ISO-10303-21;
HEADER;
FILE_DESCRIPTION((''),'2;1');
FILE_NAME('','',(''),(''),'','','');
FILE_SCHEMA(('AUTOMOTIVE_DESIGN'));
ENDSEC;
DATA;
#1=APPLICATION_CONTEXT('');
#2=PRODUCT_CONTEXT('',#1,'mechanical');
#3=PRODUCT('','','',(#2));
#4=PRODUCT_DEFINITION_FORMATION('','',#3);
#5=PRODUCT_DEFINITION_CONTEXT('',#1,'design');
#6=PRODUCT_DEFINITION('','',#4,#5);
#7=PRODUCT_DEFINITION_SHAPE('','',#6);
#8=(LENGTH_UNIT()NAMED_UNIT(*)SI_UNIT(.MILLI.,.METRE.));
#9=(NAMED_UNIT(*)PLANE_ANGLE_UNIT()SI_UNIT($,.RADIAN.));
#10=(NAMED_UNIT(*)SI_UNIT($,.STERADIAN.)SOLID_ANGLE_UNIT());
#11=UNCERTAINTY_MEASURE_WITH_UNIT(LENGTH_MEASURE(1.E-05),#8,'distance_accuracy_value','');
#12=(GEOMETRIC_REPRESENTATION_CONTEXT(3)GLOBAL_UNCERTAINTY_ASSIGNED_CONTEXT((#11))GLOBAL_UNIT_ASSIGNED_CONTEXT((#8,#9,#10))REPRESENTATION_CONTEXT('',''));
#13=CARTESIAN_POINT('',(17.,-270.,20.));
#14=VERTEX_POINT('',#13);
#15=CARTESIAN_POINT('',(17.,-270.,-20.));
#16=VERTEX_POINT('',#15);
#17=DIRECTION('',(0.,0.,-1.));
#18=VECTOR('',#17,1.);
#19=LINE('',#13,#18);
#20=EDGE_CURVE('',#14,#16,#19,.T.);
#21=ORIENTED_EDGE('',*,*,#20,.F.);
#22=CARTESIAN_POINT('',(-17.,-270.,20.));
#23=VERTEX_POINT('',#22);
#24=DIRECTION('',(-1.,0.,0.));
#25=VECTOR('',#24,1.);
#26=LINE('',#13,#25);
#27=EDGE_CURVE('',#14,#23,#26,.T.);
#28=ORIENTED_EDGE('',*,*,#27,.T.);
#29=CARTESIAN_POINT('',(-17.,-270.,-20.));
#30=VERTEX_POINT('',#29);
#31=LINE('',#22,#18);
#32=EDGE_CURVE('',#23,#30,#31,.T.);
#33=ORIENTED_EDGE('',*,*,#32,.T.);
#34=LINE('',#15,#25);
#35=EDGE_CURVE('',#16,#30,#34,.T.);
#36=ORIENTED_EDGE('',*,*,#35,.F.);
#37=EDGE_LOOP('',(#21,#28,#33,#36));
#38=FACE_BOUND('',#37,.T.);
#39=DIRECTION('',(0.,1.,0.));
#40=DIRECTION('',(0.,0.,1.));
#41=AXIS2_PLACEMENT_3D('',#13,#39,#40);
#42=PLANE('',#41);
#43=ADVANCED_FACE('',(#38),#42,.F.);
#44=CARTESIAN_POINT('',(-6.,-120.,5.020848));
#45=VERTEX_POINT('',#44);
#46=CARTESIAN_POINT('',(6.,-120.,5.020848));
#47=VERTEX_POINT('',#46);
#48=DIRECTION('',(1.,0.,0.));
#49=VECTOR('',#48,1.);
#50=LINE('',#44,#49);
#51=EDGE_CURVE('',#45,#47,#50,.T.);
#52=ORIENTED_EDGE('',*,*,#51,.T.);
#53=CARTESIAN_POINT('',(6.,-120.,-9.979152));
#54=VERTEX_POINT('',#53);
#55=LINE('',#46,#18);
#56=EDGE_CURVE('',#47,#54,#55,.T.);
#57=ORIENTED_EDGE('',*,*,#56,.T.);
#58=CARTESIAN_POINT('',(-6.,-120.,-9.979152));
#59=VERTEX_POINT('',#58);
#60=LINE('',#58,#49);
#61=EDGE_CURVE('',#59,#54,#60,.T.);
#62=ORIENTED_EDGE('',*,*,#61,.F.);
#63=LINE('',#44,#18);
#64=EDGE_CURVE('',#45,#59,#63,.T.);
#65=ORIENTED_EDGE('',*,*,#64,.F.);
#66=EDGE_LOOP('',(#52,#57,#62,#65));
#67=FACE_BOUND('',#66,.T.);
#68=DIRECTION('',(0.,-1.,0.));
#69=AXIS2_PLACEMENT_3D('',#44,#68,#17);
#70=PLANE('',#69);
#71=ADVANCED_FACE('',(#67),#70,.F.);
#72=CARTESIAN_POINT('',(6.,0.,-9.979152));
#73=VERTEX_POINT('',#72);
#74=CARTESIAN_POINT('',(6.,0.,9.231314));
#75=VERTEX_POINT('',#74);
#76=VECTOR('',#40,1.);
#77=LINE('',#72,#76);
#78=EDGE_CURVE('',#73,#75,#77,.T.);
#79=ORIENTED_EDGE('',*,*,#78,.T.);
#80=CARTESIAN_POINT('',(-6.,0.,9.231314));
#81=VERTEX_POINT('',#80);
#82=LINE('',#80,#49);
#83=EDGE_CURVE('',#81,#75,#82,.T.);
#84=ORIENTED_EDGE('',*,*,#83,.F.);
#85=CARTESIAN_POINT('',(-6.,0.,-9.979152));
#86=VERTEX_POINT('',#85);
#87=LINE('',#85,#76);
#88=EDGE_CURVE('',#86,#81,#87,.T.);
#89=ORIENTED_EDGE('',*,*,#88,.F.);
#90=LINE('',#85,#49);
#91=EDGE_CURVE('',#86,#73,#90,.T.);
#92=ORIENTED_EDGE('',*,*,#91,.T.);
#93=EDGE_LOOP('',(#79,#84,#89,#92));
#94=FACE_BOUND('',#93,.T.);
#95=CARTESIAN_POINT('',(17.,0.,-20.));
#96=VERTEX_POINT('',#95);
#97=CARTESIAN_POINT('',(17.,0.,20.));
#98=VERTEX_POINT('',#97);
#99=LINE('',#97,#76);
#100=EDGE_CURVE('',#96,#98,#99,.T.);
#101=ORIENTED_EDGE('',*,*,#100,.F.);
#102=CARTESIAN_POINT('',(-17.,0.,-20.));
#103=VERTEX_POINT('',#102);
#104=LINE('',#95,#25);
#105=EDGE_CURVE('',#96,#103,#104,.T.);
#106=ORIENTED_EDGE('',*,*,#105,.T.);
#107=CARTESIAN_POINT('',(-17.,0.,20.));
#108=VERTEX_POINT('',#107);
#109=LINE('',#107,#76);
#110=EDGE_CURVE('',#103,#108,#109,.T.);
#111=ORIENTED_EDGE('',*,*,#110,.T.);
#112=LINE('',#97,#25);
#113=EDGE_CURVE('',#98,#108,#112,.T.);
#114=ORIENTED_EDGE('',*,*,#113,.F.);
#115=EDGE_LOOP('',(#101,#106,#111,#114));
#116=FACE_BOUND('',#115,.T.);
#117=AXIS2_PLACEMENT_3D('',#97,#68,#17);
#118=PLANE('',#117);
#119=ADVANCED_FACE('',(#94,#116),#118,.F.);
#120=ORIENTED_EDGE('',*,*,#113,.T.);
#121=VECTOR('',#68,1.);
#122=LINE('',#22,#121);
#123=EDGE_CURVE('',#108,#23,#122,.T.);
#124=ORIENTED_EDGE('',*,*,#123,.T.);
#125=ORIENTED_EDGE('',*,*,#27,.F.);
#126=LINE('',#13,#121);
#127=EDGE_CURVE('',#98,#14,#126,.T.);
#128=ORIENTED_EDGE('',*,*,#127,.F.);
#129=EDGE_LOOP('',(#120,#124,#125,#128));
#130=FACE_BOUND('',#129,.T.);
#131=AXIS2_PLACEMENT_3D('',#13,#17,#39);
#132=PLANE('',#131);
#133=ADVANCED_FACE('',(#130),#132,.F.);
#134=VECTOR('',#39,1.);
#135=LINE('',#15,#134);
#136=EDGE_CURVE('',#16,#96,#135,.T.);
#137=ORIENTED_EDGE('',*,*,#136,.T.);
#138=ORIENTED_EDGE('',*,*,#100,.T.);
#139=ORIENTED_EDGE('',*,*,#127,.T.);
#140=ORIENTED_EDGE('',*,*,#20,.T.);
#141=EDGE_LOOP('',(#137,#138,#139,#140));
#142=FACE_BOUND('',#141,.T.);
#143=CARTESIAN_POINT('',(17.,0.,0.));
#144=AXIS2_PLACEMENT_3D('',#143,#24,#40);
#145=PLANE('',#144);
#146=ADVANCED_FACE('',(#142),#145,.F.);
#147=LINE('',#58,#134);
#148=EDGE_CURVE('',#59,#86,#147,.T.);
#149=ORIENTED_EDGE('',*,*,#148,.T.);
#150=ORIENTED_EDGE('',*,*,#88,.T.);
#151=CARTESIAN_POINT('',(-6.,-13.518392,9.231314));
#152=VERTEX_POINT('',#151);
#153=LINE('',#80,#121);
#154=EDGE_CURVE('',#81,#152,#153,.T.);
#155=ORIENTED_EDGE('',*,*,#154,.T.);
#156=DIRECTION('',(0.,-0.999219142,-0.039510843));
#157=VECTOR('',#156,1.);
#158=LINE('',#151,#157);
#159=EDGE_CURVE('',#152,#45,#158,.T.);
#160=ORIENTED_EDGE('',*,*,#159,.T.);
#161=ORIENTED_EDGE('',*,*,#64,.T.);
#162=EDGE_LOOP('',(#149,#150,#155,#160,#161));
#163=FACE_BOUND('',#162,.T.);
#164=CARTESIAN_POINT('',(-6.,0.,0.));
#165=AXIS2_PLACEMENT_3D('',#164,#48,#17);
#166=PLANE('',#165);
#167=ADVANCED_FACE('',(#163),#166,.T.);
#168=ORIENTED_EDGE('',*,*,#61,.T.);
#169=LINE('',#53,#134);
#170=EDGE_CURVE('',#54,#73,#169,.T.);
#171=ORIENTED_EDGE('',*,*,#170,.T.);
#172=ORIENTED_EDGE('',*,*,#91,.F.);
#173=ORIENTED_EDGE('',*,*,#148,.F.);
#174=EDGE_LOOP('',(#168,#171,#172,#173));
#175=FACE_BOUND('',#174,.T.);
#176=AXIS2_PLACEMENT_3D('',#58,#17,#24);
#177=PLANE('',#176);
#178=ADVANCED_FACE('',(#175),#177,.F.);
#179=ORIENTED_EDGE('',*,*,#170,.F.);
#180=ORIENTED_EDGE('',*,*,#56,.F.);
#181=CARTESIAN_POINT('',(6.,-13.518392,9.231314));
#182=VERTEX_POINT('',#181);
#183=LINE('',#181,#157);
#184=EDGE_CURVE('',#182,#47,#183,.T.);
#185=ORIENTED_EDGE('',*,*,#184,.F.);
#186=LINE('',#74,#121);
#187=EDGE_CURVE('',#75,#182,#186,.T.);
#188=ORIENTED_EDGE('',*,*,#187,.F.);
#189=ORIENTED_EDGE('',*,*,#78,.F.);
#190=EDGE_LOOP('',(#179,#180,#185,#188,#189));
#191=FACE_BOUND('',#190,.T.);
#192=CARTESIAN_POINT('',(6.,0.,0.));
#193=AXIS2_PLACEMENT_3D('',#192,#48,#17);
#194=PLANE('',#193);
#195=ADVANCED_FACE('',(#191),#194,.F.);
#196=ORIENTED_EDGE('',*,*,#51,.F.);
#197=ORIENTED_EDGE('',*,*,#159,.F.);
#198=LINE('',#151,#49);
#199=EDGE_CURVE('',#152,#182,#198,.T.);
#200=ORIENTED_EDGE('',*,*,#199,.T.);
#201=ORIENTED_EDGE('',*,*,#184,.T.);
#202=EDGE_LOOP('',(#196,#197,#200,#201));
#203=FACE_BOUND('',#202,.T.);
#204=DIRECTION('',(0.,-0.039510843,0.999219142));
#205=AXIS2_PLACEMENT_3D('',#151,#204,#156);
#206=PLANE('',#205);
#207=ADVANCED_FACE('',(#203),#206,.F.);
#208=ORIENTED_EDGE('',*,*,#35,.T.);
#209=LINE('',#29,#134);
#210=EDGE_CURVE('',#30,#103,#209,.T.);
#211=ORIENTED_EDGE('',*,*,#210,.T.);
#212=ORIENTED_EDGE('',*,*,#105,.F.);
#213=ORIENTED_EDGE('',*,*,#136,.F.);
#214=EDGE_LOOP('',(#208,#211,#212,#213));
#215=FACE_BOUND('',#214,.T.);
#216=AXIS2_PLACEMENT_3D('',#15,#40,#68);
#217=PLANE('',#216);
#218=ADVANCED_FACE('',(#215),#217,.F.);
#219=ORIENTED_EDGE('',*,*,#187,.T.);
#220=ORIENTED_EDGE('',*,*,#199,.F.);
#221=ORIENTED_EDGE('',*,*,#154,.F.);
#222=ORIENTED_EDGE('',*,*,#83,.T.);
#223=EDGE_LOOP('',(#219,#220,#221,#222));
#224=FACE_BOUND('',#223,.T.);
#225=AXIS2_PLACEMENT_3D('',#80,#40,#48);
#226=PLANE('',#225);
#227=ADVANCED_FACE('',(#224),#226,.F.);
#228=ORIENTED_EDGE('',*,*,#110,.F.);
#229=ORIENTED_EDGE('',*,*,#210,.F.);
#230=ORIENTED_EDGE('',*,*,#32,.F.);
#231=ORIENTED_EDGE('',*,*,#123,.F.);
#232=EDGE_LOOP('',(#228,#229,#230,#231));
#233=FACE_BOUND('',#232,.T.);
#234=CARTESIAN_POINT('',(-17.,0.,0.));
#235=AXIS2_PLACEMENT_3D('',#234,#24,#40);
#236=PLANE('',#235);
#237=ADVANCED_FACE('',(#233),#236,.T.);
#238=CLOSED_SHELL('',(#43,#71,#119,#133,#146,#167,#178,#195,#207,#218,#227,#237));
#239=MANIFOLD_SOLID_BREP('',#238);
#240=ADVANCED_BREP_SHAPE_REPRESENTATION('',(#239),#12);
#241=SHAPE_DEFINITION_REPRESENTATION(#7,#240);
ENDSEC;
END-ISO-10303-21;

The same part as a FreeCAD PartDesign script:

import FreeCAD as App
import Part
import Sketcher
Q = App.Units.Quantity


def add_polygon(sketch, points):
    """Adds a closed chain of lines whose ends are joined by coincident constraints."""
    first, n = sketch.GeometryCount, len(points)
    for a, b in zip(points, points[1:] + points[:1]):
        sketch.addGeometry(Part.LineSegment(App.Vector(*a, 0), App.Vector(*b, 0)), False)
    for i in range(n):
        sketch.addConstraint(Sketcher.Constraint("Coincident", first + i, 2, first + (i + 1) % n, 1))

doc = App.newDocument("Part")
body = doc.addObject("PartDesign::Body", "Body")

# Sketch on YZ plane
sketch1 = doc.addObject("Sketcher::SketchObject", "Sketch")
body.addObject(sketch1)
sketch1.AttachmentSupport = (doc.YZ_Plane, [""])
sketch1.MapMode = "FlatFace"
add_polygon(sketch1, [(0, 20), (-270, 20), (-270, -20), (0, -20)])  # lines 0-3
sketch1.addConstraint(Sketcher.Constraint("Horizontal", 0))
sketch1.addConstraint(Sketcher.Constraint("Vertical", 1))
sketch1.addConstraint(Sketcher.Constraint("Horizontal", 2))
sketch1.addConstraint(Sketcher.Constraint("Vertical", 3))
sketch1.addConstraint(Sketcher.Constraint("Symmetric", 2, 2, 3, 2, -1, 1))
sketch1.addConstraint(Sketcher.Constraint("DistanceX", 0, 2, 0, 1, Q("270 mm")))
sketch1.addConstraint(Sketcher.Constraint("DistanceY", 1, 2, 1, 1, Q("40 mm")))
pad1 = doc.addObject("PartDesign::Pad", "Pad")
body.addObject(pad1)
pad1.Profile = sketch1
pad1.Length = 34
pad1.Midplane = True

# Sketch on YZ plane
sketch2 = doc.addObject("Sketcher::SketchObject", "Sketch001")
body.addObject(sketch2)
sketch2.AttachmentSupport = (doc.YZ_Plane, [""])
sketch2.MapMode = "FlatFace"
add_polygon(sketch2, [(0, 9), (-14, 9), (-120, 5), (-120, -10), (0, -10)])  # lines 0-4
sketch2.addConstraint(Sketcher.Constraint("Horizontal", 0))
sketch2.addConstraint(Sketcher.Constraint("Vertical", 2))
sketch2.addConstraint(Sketcher.Constraint("Horizontal", 3))
sketch2.addConstraint(Sketcher.Constraint("Vertical", 4))
sketch2.addConstraint(Sketcher.Constraint("PointOnObject", 3, 2, -2))
sketch2.addConstraint(Sketcher.Constraint("DistanceX", 3, 1, 3, 2, Q("120 mm")))
sketch2.addConstraint(Sketcher.Constraint("DistanceY", 2, 2, 2, 1, Q("15 mm")))
sketch2.addConstraint(Sketcher.Constraint("DistanceX", 0, 2, 0, 1, Q("13.518392 mm")))
sketch2.addConstraint(Sketcher.Constraint("Distance", 1, Q("106.56482 mm")))
sketch2.addConstraint(Sketcher.Constraint("DistanceY", -1, 1, 0, 2, Q("9.231314 mm")))
pocket1 = doc.addObject("PartDesign::Pocket", "Pocket")
body.addObject(pocket1)
pocket1.Profile = sketch2
pocket1.Length = 12
pocket1.Midplane = True

doc.recompute()
